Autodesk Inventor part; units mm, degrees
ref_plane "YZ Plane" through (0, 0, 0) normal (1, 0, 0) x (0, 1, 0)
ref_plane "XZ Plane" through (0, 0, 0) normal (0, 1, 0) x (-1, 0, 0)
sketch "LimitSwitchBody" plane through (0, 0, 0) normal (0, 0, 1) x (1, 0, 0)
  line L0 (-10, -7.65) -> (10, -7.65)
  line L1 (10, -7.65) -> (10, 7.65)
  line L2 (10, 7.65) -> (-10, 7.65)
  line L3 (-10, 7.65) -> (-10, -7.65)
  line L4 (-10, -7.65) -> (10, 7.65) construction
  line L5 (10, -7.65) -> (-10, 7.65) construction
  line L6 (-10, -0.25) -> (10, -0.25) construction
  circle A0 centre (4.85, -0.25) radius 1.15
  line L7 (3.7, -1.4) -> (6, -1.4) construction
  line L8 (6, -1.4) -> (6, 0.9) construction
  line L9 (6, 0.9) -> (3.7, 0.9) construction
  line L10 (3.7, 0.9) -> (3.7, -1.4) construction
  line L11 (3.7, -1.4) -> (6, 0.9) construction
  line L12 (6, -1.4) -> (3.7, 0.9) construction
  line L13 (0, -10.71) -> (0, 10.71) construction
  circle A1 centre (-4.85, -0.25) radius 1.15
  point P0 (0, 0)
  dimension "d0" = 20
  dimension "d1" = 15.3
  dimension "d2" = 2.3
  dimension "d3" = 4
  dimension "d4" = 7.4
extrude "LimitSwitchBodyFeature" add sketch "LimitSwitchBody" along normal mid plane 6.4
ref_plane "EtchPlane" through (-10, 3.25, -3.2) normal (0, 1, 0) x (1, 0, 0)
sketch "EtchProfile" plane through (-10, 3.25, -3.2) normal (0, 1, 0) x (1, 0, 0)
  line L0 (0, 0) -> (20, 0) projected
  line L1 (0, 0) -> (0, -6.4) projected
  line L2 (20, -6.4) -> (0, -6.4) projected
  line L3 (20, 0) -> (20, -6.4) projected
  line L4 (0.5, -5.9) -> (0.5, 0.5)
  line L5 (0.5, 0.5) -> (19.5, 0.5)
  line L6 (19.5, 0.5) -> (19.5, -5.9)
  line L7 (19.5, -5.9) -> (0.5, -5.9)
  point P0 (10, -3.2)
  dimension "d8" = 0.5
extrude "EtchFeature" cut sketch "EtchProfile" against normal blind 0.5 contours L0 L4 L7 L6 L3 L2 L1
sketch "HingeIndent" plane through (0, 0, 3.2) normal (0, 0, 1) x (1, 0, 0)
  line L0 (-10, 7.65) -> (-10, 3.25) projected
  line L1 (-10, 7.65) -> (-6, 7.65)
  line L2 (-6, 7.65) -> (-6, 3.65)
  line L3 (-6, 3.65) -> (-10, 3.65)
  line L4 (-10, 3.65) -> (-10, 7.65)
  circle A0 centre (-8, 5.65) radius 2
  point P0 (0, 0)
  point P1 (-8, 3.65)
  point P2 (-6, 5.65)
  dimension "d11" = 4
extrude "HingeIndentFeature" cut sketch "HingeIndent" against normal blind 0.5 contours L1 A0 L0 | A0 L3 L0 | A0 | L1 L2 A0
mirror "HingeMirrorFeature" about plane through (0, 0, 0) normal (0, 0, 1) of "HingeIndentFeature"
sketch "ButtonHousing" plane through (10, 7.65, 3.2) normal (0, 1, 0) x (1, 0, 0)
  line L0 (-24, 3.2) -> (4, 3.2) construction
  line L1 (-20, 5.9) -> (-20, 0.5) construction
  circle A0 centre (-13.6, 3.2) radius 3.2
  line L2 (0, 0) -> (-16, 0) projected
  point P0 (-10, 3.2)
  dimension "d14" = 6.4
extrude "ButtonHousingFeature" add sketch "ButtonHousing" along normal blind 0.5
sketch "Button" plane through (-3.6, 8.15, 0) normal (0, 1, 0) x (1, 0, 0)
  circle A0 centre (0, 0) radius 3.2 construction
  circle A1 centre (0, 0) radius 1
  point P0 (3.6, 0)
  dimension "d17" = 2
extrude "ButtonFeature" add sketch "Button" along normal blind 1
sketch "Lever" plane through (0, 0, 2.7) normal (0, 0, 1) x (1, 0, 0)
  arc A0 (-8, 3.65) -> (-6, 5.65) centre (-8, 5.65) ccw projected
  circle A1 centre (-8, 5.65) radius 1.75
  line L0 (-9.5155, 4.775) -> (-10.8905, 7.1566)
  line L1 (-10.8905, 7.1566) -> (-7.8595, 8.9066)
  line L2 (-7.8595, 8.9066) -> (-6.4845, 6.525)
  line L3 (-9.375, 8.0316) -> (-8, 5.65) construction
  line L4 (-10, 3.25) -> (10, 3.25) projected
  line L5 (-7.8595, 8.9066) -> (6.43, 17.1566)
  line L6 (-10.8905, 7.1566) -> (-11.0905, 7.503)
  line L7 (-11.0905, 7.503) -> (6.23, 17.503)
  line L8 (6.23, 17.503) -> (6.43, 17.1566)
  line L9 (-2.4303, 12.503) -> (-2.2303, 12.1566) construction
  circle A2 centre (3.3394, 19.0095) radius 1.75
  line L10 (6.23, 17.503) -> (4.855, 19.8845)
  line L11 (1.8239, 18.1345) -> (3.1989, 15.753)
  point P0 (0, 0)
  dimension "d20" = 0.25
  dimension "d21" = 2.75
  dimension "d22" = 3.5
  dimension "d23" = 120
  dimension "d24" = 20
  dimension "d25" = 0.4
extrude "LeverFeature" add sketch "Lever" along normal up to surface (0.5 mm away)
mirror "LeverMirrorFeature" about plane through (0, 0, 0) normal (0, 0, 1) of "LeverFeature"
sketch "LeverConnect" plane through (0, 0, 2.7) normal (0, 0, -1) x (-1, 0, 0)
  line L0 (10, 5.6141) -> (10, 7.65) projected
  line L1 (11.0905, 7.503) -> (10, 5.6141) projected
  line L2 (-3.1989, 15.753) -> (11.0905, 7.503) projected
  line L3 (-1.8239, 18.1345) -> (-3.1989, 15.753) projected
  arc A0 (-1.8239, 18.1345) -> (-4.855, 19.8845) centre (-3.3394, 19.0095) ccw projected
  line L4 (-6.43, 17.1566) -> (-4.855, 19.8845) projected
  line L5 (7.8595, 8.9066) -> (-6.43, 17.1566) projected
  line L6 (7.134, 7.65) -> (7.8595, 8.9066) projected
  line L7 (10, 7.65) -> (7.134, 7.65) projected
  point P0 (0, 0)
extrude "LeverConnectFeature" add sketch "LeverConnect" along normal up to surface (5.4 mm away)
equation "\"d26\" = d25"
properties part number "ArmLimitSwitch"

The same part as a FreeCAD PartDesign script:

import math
import FreeCAD as App
import Part
import Sketcher

V = App.Vector
Q = App.Units.Quantity

doc = App.newDocument("Part")
body = doc.addObject("PartDesign::Body", "Body")

# Sketch on XY plane
sketch1 = body.newObject("Sketcher::SketchObject", "Sketch")
sketch1.AttachmentSupport = (doc.getObject("XY_Plane"), [""])
sketch1.MapMode = "FlatFace"
sketch1.addGeometry(Part.LineSegment(V(-10, 7.7, 0), V(-10, -7.7, 0)), False)
sketch1.addGeometry(Part.LineSegment(V(-10, -7.7, 0), V(10, -7.7, 0)), False)
sketch1.addGeometry(Part.LineSegment(V(10, -7.7, 0), V(10, 7.7, 0)), False)
sketch1.addGeometry(Part.LineSegment(V(10, 7.7, 0), V(-10, 7.7, 0)), False)
sketch1.addGeometry(Part.Circle(V(-4.8, -0.2, 0), V(0, 0, 1), 1.1), False)
sketch1.addGeometry(Part.Circle(V(4.8, -0.2, 0), V(0, 0, 1), 1.1), False)
sketch1.addConstraint(Sketcher.Constraint("Coincident", 0, 2, 1, 1))
sketch1.addConstraint(Sketcher.Constraint("Coincident", 1, 2, 2, 1))
sketch1.addConstraint(Sketcher.Constraint("Coincident", 2, 2, 3, 1))
sketch1.addConstraint(Sketcher.Constraint("Coincident", 3, 2, 0, 1))
sketch1.addConstraint(Sketcher.Constraint("Vertical", 0))
sketch1.addConstraint(Sketcher.Constraint("Horizontal", 1))
sketch1.addConstraint(Sketcher.Constraint("Vertical", 2))
sketch1.addConstraint(Sketcher.Constraint("Horizontal", 3))
sketch1.addConstraint(Sketcher.Constraint("Equal", 4, 5))
sketch1.addConstraint(Sketcher.Constraint("Symmetric", 0, 2, 2, 2, -1, 1))
sketch1.addConstraint(Sketcher.Constraint("Symmetric", 4, 3, 5, 3, -2))
sketch1.addConstraint(Sketcher.Constraint("Diameter", 4, 2.3))
sketch1.addConstraint(Sketcher.Constraint("DistanceX", 1, 1, 1, 2, 20.0))
sketch1.addConstraint(Sketcher.Constraint("DistanceY", 0, 2, 0, 1, 15.3))
sketch1.addConstraint(Sketcher.Constraint("DistanceY", 0, 2, 4, 3, 7.4))
sketch1.addConstraint(Sketcher.Constraint("DistanceX", 4, 3, 5, 3, 9.7))
pad1 = body.newObject("PartDesign::Pad", "Pad")
pad1.Profile = sketch1
pad1.Length = 6.4
pad1.Midplane = True

# Sketch on XZ plane
sketch2 = body.newObject("Sketcher::SketchObject", "Sketch001")
sketch2.AttachmentSupport = (doc.getObject("XZ_Plane"), [""])
sketch2.MapMode = "FlatFace"
sketch2.AttachmentOffset = App.Placement(V(0, 0, -3.25), App.Rotation())
sketch2.addGeometry(Part.LineSegment(V(-9.5, -3.2, 0), V(-10, -3.2, 0)), False)
sketch2.addGeometry(Part.LineSegment(V(-10, -3.2, 0), V(-10, 3.2, 0)), False)
sketch2.addGeometry(Part.LineSegment(V(-10, 3.2, 0), V(10, 3.2, 0)), False)
sketch2.addGeometry(Part.LineSegment(V(10, 3.2, 0), V(10, -3.2, 0)), False)
sketch2.addGeometry(Part.LineSegment(V(10, -3.2, 0), V(9.5, -3.2, 0)), False)
sketch2.addGeometry(Part.LineSegment(V(9.5, -3.2, 0), V(9.5, 2.7, 0)), False)
sketch2.addGeometry(Part.LineSegment(V(9.5, 2.7, 0), V(-9.5, 2.7, 0)), False)
sketch2.addGeometry(Part.LineSegment(V(-9.5, 2.7, 0), V(-9.5, -3.2, 0)), False)
sketch2.addConstraint(Sketcher.Constraint("Coincident", 0, 2, 1, 1))
sketch2.addConstraint(Sketcher.Constraint("Coincident", 1, 2, 2, 1))
sketch2.addConstraint(Sketcher.Constraint("Coincident", 2, 2, 3, 1))
sketch2.addConstraint(Sketcher.Constraint("Coincident", 3, 2, 4, 1))
sketch2.addConstraint(Sketcher.Constraint("Coincident", 4, 2, 5, 1))
sketch2.addConstraint(Sketcher.Constraint("Coincident", 5, 2, 6, 1))
sketch2.addConstraint(Sketcher.Constraint("Coincident", 6, 2, 7, 1))
sketch2.addConstraint(Sketcher.Constraint("Coincident", 7, 2, 0, 1))
sketch2.addConstraint(Sketcher.Constraint("Horizontal", 0))
sketch2.addConstraint(Sketcher.Constraint("Vertical", 1))
sketch2.addConstraint(Sketcher.Constraint("Horizontal", 2))
sketch2.addConstraint(Sketcher.Constraint("Vertical", 3))
sketch2.addConstraint(Sketcher.Constraint("Horizontal", 4))
sketch2.addConstraint(Sketcher.Constraint("Vertical", 5))
sketch2.addConstraint(Sketcher.Constraint("Horizontal", 6))
sketch2.addConstraint(Sketcher.Constraint("Vertical", 7))
sketch2.addConstraint(Sketcher.Constraint("Symmetric", 0, 2, 2, 2, -1, 1))
sketch2.addConstraint(Sketcher.Constraint("Symmetric", 4, 2, 7, 2, -2))
sketch2.addConstraint(Sketcher.Constraint("DistanceX", 0, 2, 0, 1, 0.5))
sketch2.addConstraint(Sketcher.Constraint("DistanceY", 5, 2, 2, 2, 0.5))
sketch2.addConstraint(Sketcher.Constraint("DistanceX", 2, 1, 2, 2, 20.0))
sketch2.addConstraint(Sketcher.Constraint("DistanceY", 1, 1, 1, 2, 6.4))
pocket1 = body.newObject("PartDesign::Pocket", "Pocket")
pocket1.Profile = sketch2
pocket1.Length = 0.5
pocket1.Reversed = True

# Sketch on XY plane
sketch3 = body.newObject("Sketcher::SketchObject", "Sketch002")
sketch3.AttachmentSupport = (doc.getObject("XY_Plane"), [""])
sketch3.MapMode = "FlatFace"
sketch3.AttachmentOffset = App.Placement(V(0, 0, 3.2), App.Rotation())
sketch3.addGeometry(Part.LineSegment(V(-10, 7.7, 0), V(-10, 3.6, 0)), False)
sketch3.addGeometry(Part.LineSegment(V(-10, 3.6, 0), V(-8, 3.6, 0)), False)
sketch3.addGeometry(Part.ArcOfCircle(Part.Circle(V(-8, 5.7, 0), V(0, 0, 1), 2), math.radians(-90), math.radians(0)), False)
sketch3.addGeometry(Part.LineSegment(V(-6, 5.7, 0), V(-6, 7.7, 0)), False)
sketch3.addGeometry(Part.LineSegment(V(-6, 7.7, 0), V(-10, 7.7, 0)), False)
sketch3.addConstraint(Sketcher.Constraint("Coincident", 0, 2, 1, 1))
sketch3.addConstraint(Sketcher.Constraint("Tangent", 1, 2, 2, 1))
sketch3.addConstraint(Sketcher.Constraint("Tangent", 2, 2, 3, 1))
sketch3.addConstraint(Sketcher.Constraint("Coincident", 3, 2, 4, 1))
sketch3.addConstraint(Sketcher.Constraint("Coincident", 4, 2, 0, 1))
sketch3.addConstraint(Sketcher.Constraint("Vertical", 0))
sketch3.addConstraint(Sketcher.Constraint("Horizontal", 1))
sketch3.addConstraint(Sketcher.Constraint("Vertical", 3))
sketch3.addConstraint(Sketcher.Constraint("Horizontal", 4))
sketch3.addConstraint(Sketcher.Constraint("Equal", 4, 0))
sketch3.addConstraint(Sketcher.Constraint("Radius", 2, 2.0))
sketch3.addConstraint(Sketcher.Constraint("DistanceX", 4, 2, 4, 1, 4.0))
sketch3.addConstraint(Sketcher.Constraint("DistanceX", 2, 3, -1, 1, 8.0))
sketch3.addConstraint(Sketcher.Constraint("DistanceY", -1, 1, 2, 3, 5.65))
pocket2 = body.newObject("PartDesign::Pocket", "Pocket001")
pocket2.Profile = sketch3
pocket2.Length = 0.5
doc.recompute()

mirrored = body.newObject("PartDesign::Mirrored", "Mirrored")
mirrored.Originals = [pocket2]
mirrored.MirrorPlane = (doc.getObject("XY_Plane"), [""])
body.Tip = mirrored

# Sketch on XZ plane
sketch4 = body.newObject("Sketcher::SketchObject", "Sketch003")
sketch4.AttachmentSupport = (doc.getObject("XZ_Plane"), [""])
sketch4.MapMode = "FlatFace"
sketch4.AttachmentOffset = App.Placement(V(0, 0, -7.65), App.Rotation())
sketch4.addGeometry(Part.Circle(V(-3.6, 0, 0), V(0, 0, 1), 3.2), False)
sketch4.addConstraint(Sketcher.Constraint("PointOnObject", 0, 3, -1))
sketch4.addConstraint(Sketcher.Constraint("Diameter", 0, 6.4))
sketch4.addConstraint(Sketcher.Constraint("DistanceX", 0, 3, -1, 1, 3.6))
pad2 = body.newObject("PartDesign::Pad", "Pad001")
pad2.Profile = sketch4
pad2.Length = 0.5
pad2.Reversed = True

# Sketch on XZ plane
sketch5 = body.newObject("Sketcher::SketchObject", "Sketch004")
sketch5.AttachmentSupport = (doc.getObject("XZ_Plane"), [""])
sketch5.MapMode = "FlatFace"
sketch5.AttachmentOffset = App.Placement(V(0, 0, -8.15), App.Rotation())
sketch5.addGeometry(Part.Circle(V(-3.6, 0, 0), V(0, 0, 1), 1), False)
sketch5.addConstraint(Sketcher.Constraint("PointOnObject", 0, 3, -1))
sketch5.addConstraint(Sketcher.Constraint("Diameter", 0, 2.0))
sketch5.addConstraint(Sketcher.Constraint("DistanceX", 0, 3, -1, 1, 3.6))
pad3 = body.newObject("PartDesign::Pad", "Pad002")
pad3.Profile = sketch5
pad3.Length = 1
pad3.Reversed = True

# Sketch on XY plane
sketch6 = body.newObject("Sketcher::SketchObject", "Sketch005")
sketch6.AttachmentSupport = (doc.getObject("XY_Plane"), [""])
sketch6.MapMode = "FlatFace"
sketch6.AttachmentOffset = App.Placement(V(0, 0, 2.7), App.Rotation())
sketch6.addGeometry(Part.ArcOfCircle(Part.Circle(V(-8, 5.65, 0), V(0, 0, 1), 1.75), math.radians(-150), math.radians(30)), False)
sketch6.addGeometry(Part.LineSegment(V(-6.48, 6.53, 0), V(-7.86, 8.91, 0)), False)
sketch6.addGeometry(Part.LineSegment(V(-7.86, 8.91, 0), V(6.43, 17.16, 0)), False)
sketch6.addGeometry(Part.LineSegment(V(6.43, 17.16, 0), V(4.86, 19.88, 0)), False)
sketch6.addGeometry(Part.ArcOfCircle(Part.Circle(V(3.34, 19.01, 0), V(0, 0, 1), 1.75), math.radians(30), math.radians(210)), False)
sketch6.addGeometry(Part.LineSegment(V(1.82, 18.13, 0), V(3.2, 15.75, 0)), False)
sketch6.addGeometry(Part.LineSegment(V(3.2, 15.75, 0), V(-11.09, 7.5, 0)), False)
sketch6.addGeometry(Part.LineSegment(V(-11.09, 7.5, 0), V(-10.89, 7.16, 0)), False)
sketch6.addGeometry(Part.LineSegment(V(-10.89, 7.16, 0), V(-9.52, 4.78, 0)), False)
sketch6.addConstraint(Sketcher.Constraint("Tangent", 0, 2, 1, 1))
sketch6.addConstraint(Sketcher.Constraint("Coincident", 1, 2, 2, 1))
sketch6.addConstraint(Sketcher.Constraint("Coincident", 2, 2, 3, 1))
sketch6.addConstraint(Sketcher.Constraint("Tangent", 3, 2, 4, 1))
sketch6.addConstraint(Sketcher.Constraint("Tangent", 4, 2, 5, 1))
sketch6.addConstraint(Sketcher.Constraint("Coincident", 5, 2, 6, 1))
sketch6.addConstraint(Sketcher.Constraint("Coincident", 6, 2, 7, 1))
sketch6.addConstraint(Sketcher.Constraint("Coincident", 7, 2, 8, 1))
sketch6.addConstraint(Sketcher.Constraint("Tangent", 8, 2, 0, 1))
sketch6.addConstraint(Sketcher.Constraint("Equal", 0, 4))
sketch6.addConstraint(Sketcher.Constraint("Perpendicular", 1, 2))
sketch6.addConstraint(Sketcher.Constraint("Perpendicular", 2, 3))
sketch6.addConstraint(Sketcher.Constraint("Parallel", 3, 5))
sketch6.addConstraint(Sketcher.Constraint("Perpendicular", 5, 6))
sketch6.addConstraint(Sketcher.Constraint("Perpendicular", 6, 7))
sketch6.addConstraint(Sketcher.Constraint("Parallel", 7, 8))
sketch6.addConstraint(Sketcher.Constraint("Equal", 1, 5))
sketch6.addConstraint(Sketcher.Constraint("Equal", 5, 8))
sketch6.addConstraint(Sketcher.Constraint("Angle", 1, Q("119.9997 deg")))
sketch6.addConstraint(Sketcher.Constraint("Radius", 0, 1.75))
sketch6.addConstraint(Sketcher.Constraint("Distance", 7, 0.4))
sketch6.addConstraint(Sketcher.Constraint("Distance", 1, 2.75))
sketch6.addConstraint(Sketcher.Constraint("DistanceX", 0, 3, -1, 1, 8.0))
sketch6.addConstraint(Sketcher.Constraint("Distance", 2, 16.5))
sketch6.addConstraint(Sketcher.Constraint("DistanceY", -1, 1, 0, 3, 5.65))
pad4 = body.newObject("PartDesign::Pad", "Pad003")
pad4.Profile = sketch6
pad4.Length = 0.5
doc.recompute()

mirrored2 = body.newObject("PartDesign::Mirrored", "Mirrored001")
mirrored2.Originals = [pad4]
mirrored2.MirrorPlane = (doc.getObject("XY_Plane"), [""])
body.Tip = mirrored2

# Sketch on XY plane
sketch7 = body.newObject("Sketcher::SketchObject", "Sketch006")
sketch7.AttachmentSupport = (doc.getObject("XY_Plane"), [""])
sketch7.MapMode = "FlatFace"
sketch7.AttachmentOffset = App.Placement(V(0, 0, 2.7), App.Rotation())
sketch7.addGeometry(Part.LineSegment(V(-10, 7.7, 0), V(-10, 5.6, 0)), False)
sketch7.addGeometry(Part.LineSegment(V(-10, 5.6, 0), V(-11.1, 7.5, 0)), False)
sketch7.addGeometry(Part.LineSegment(V(-11.1, 7.5, 0), V(3.2, 15.8, 0)), False)
sketch7.addGeometry(Part.LineSegment(V(3.2, 15.8, 0), V(1.8, 18.1, 0)), False)
sketch7.addGeometry(Part.ArcOfCircle(Part.Circle(V(3.3, 19, 0), V(0, 0, 1), 1.7), math.radians(30), math.radians(210)), False)
sketch7.addGeometry(Part.LineSegment(V(4.9, 19.9, 0), V(6.4, 17.2, 0)), False)
sketch7.addGeometry(Part.LineSegment(V(6.4, 17.2, 0), V(-7.9, 8.9, 0)), False)
sketch7.addGeometry(Part.LineSegment(V(-7.9, 8.9, 0), V(-7.1, 7.7, 0)), False)
sketch7.addGeometry(Part.LineSegment(V(-7.1, 7.7, 0), V(-10, 7.7, 0)), False)
sketch7.addConstraint(Sketcher.Constraint("Coincident", 0, 2, 1, 1))
sketch7.addConstraint(Sketcher.Constraint("Coincident", 1, 2, 2, 1))
sketch7.addConstraint(Sketcher.Constraint("Coincident", 2, 2, 3, 1))
sketch7.addConstraint(Sketcher.Constraint("Tangent", 3, 2, 4, 2))
sketch7.addConstraint(Sketcher.Constraint("Tangent", 4, 1, 5, 1))
sketch7.addConstraint(Sketcher.Constraint("Coincident", 5, 2, 6, 1))
sketch7.addConstraint(Sketcher.Constraint("Coincident", 6, 2, 7, 1))
sketch7.addConstraint(Sketcher.Constraint("Coincident", 7, 2, 8, 1))
sketch7.addConstraint(Sketcher.Constraint("Coincident", 8, 2, 0, 1))
sketch7.addConstraint(Sketcher.Constraint("Vertical", 0))
sketch7.addConstraint(Sketcher.Constraint("Horizontal", 8))
sketch7.addConstraint(Sketcher.Constraint("Perpendicular", 1, 2))
sketch7.addConstraint(Sketcher.Constraint("Perpendicular", 2, 3))
sketch7.addConstraint(Sketcher.Constraint("Parallel", 3, 5))
sketch7.addConstraint(Sketcher.Constraint("Perpendicular", 5, 6))
sketch7.addConstraint(Sketcher.Constraint("Perpendicular", 6, 7))
sketch7.addConstraint(Sketcher.Constraint("Equal", 2, 6))
sketch7.addConstraint(Sketcher.Constraint("Angle", 2, Q("30 deg")))
sketch7.addConstraint(Sketcher.Constraint("Radius", 4, 1.75))
sketch7.addConstraint(Sketcher.Constraint("DistanceX", 0, 2, -1, 1, 10.0))
sketch7.addConstraint(Sketcher.Constraint("Distance", 2, 16.5))
sketch7.addConstraint(Sketcher.Constraint("Distance", 3, 2.75))
sketch7.addConstraint(Sketcher.Constraint("Distance", 5, 3.15))
sketch7.addConstraint(Sketcher.Constraint("DistanceX", 8, 2, 8, 1, 2.866))
sketch7.addConstraint(Sketcher.Constraint("DistanceX", -1, 1, 5, 2, 6.43))
sketch7.addConstraint(Sketcher.Constraint("DistanceY", -1, 1, 7, 2, 7.65))
pad5 = body.newObject("PartDesign::Pad", "Pad004")
pad5.Profile = sketch7
pad5.Length = 5.4
pad5.Reversed = True

doc.recompute()
